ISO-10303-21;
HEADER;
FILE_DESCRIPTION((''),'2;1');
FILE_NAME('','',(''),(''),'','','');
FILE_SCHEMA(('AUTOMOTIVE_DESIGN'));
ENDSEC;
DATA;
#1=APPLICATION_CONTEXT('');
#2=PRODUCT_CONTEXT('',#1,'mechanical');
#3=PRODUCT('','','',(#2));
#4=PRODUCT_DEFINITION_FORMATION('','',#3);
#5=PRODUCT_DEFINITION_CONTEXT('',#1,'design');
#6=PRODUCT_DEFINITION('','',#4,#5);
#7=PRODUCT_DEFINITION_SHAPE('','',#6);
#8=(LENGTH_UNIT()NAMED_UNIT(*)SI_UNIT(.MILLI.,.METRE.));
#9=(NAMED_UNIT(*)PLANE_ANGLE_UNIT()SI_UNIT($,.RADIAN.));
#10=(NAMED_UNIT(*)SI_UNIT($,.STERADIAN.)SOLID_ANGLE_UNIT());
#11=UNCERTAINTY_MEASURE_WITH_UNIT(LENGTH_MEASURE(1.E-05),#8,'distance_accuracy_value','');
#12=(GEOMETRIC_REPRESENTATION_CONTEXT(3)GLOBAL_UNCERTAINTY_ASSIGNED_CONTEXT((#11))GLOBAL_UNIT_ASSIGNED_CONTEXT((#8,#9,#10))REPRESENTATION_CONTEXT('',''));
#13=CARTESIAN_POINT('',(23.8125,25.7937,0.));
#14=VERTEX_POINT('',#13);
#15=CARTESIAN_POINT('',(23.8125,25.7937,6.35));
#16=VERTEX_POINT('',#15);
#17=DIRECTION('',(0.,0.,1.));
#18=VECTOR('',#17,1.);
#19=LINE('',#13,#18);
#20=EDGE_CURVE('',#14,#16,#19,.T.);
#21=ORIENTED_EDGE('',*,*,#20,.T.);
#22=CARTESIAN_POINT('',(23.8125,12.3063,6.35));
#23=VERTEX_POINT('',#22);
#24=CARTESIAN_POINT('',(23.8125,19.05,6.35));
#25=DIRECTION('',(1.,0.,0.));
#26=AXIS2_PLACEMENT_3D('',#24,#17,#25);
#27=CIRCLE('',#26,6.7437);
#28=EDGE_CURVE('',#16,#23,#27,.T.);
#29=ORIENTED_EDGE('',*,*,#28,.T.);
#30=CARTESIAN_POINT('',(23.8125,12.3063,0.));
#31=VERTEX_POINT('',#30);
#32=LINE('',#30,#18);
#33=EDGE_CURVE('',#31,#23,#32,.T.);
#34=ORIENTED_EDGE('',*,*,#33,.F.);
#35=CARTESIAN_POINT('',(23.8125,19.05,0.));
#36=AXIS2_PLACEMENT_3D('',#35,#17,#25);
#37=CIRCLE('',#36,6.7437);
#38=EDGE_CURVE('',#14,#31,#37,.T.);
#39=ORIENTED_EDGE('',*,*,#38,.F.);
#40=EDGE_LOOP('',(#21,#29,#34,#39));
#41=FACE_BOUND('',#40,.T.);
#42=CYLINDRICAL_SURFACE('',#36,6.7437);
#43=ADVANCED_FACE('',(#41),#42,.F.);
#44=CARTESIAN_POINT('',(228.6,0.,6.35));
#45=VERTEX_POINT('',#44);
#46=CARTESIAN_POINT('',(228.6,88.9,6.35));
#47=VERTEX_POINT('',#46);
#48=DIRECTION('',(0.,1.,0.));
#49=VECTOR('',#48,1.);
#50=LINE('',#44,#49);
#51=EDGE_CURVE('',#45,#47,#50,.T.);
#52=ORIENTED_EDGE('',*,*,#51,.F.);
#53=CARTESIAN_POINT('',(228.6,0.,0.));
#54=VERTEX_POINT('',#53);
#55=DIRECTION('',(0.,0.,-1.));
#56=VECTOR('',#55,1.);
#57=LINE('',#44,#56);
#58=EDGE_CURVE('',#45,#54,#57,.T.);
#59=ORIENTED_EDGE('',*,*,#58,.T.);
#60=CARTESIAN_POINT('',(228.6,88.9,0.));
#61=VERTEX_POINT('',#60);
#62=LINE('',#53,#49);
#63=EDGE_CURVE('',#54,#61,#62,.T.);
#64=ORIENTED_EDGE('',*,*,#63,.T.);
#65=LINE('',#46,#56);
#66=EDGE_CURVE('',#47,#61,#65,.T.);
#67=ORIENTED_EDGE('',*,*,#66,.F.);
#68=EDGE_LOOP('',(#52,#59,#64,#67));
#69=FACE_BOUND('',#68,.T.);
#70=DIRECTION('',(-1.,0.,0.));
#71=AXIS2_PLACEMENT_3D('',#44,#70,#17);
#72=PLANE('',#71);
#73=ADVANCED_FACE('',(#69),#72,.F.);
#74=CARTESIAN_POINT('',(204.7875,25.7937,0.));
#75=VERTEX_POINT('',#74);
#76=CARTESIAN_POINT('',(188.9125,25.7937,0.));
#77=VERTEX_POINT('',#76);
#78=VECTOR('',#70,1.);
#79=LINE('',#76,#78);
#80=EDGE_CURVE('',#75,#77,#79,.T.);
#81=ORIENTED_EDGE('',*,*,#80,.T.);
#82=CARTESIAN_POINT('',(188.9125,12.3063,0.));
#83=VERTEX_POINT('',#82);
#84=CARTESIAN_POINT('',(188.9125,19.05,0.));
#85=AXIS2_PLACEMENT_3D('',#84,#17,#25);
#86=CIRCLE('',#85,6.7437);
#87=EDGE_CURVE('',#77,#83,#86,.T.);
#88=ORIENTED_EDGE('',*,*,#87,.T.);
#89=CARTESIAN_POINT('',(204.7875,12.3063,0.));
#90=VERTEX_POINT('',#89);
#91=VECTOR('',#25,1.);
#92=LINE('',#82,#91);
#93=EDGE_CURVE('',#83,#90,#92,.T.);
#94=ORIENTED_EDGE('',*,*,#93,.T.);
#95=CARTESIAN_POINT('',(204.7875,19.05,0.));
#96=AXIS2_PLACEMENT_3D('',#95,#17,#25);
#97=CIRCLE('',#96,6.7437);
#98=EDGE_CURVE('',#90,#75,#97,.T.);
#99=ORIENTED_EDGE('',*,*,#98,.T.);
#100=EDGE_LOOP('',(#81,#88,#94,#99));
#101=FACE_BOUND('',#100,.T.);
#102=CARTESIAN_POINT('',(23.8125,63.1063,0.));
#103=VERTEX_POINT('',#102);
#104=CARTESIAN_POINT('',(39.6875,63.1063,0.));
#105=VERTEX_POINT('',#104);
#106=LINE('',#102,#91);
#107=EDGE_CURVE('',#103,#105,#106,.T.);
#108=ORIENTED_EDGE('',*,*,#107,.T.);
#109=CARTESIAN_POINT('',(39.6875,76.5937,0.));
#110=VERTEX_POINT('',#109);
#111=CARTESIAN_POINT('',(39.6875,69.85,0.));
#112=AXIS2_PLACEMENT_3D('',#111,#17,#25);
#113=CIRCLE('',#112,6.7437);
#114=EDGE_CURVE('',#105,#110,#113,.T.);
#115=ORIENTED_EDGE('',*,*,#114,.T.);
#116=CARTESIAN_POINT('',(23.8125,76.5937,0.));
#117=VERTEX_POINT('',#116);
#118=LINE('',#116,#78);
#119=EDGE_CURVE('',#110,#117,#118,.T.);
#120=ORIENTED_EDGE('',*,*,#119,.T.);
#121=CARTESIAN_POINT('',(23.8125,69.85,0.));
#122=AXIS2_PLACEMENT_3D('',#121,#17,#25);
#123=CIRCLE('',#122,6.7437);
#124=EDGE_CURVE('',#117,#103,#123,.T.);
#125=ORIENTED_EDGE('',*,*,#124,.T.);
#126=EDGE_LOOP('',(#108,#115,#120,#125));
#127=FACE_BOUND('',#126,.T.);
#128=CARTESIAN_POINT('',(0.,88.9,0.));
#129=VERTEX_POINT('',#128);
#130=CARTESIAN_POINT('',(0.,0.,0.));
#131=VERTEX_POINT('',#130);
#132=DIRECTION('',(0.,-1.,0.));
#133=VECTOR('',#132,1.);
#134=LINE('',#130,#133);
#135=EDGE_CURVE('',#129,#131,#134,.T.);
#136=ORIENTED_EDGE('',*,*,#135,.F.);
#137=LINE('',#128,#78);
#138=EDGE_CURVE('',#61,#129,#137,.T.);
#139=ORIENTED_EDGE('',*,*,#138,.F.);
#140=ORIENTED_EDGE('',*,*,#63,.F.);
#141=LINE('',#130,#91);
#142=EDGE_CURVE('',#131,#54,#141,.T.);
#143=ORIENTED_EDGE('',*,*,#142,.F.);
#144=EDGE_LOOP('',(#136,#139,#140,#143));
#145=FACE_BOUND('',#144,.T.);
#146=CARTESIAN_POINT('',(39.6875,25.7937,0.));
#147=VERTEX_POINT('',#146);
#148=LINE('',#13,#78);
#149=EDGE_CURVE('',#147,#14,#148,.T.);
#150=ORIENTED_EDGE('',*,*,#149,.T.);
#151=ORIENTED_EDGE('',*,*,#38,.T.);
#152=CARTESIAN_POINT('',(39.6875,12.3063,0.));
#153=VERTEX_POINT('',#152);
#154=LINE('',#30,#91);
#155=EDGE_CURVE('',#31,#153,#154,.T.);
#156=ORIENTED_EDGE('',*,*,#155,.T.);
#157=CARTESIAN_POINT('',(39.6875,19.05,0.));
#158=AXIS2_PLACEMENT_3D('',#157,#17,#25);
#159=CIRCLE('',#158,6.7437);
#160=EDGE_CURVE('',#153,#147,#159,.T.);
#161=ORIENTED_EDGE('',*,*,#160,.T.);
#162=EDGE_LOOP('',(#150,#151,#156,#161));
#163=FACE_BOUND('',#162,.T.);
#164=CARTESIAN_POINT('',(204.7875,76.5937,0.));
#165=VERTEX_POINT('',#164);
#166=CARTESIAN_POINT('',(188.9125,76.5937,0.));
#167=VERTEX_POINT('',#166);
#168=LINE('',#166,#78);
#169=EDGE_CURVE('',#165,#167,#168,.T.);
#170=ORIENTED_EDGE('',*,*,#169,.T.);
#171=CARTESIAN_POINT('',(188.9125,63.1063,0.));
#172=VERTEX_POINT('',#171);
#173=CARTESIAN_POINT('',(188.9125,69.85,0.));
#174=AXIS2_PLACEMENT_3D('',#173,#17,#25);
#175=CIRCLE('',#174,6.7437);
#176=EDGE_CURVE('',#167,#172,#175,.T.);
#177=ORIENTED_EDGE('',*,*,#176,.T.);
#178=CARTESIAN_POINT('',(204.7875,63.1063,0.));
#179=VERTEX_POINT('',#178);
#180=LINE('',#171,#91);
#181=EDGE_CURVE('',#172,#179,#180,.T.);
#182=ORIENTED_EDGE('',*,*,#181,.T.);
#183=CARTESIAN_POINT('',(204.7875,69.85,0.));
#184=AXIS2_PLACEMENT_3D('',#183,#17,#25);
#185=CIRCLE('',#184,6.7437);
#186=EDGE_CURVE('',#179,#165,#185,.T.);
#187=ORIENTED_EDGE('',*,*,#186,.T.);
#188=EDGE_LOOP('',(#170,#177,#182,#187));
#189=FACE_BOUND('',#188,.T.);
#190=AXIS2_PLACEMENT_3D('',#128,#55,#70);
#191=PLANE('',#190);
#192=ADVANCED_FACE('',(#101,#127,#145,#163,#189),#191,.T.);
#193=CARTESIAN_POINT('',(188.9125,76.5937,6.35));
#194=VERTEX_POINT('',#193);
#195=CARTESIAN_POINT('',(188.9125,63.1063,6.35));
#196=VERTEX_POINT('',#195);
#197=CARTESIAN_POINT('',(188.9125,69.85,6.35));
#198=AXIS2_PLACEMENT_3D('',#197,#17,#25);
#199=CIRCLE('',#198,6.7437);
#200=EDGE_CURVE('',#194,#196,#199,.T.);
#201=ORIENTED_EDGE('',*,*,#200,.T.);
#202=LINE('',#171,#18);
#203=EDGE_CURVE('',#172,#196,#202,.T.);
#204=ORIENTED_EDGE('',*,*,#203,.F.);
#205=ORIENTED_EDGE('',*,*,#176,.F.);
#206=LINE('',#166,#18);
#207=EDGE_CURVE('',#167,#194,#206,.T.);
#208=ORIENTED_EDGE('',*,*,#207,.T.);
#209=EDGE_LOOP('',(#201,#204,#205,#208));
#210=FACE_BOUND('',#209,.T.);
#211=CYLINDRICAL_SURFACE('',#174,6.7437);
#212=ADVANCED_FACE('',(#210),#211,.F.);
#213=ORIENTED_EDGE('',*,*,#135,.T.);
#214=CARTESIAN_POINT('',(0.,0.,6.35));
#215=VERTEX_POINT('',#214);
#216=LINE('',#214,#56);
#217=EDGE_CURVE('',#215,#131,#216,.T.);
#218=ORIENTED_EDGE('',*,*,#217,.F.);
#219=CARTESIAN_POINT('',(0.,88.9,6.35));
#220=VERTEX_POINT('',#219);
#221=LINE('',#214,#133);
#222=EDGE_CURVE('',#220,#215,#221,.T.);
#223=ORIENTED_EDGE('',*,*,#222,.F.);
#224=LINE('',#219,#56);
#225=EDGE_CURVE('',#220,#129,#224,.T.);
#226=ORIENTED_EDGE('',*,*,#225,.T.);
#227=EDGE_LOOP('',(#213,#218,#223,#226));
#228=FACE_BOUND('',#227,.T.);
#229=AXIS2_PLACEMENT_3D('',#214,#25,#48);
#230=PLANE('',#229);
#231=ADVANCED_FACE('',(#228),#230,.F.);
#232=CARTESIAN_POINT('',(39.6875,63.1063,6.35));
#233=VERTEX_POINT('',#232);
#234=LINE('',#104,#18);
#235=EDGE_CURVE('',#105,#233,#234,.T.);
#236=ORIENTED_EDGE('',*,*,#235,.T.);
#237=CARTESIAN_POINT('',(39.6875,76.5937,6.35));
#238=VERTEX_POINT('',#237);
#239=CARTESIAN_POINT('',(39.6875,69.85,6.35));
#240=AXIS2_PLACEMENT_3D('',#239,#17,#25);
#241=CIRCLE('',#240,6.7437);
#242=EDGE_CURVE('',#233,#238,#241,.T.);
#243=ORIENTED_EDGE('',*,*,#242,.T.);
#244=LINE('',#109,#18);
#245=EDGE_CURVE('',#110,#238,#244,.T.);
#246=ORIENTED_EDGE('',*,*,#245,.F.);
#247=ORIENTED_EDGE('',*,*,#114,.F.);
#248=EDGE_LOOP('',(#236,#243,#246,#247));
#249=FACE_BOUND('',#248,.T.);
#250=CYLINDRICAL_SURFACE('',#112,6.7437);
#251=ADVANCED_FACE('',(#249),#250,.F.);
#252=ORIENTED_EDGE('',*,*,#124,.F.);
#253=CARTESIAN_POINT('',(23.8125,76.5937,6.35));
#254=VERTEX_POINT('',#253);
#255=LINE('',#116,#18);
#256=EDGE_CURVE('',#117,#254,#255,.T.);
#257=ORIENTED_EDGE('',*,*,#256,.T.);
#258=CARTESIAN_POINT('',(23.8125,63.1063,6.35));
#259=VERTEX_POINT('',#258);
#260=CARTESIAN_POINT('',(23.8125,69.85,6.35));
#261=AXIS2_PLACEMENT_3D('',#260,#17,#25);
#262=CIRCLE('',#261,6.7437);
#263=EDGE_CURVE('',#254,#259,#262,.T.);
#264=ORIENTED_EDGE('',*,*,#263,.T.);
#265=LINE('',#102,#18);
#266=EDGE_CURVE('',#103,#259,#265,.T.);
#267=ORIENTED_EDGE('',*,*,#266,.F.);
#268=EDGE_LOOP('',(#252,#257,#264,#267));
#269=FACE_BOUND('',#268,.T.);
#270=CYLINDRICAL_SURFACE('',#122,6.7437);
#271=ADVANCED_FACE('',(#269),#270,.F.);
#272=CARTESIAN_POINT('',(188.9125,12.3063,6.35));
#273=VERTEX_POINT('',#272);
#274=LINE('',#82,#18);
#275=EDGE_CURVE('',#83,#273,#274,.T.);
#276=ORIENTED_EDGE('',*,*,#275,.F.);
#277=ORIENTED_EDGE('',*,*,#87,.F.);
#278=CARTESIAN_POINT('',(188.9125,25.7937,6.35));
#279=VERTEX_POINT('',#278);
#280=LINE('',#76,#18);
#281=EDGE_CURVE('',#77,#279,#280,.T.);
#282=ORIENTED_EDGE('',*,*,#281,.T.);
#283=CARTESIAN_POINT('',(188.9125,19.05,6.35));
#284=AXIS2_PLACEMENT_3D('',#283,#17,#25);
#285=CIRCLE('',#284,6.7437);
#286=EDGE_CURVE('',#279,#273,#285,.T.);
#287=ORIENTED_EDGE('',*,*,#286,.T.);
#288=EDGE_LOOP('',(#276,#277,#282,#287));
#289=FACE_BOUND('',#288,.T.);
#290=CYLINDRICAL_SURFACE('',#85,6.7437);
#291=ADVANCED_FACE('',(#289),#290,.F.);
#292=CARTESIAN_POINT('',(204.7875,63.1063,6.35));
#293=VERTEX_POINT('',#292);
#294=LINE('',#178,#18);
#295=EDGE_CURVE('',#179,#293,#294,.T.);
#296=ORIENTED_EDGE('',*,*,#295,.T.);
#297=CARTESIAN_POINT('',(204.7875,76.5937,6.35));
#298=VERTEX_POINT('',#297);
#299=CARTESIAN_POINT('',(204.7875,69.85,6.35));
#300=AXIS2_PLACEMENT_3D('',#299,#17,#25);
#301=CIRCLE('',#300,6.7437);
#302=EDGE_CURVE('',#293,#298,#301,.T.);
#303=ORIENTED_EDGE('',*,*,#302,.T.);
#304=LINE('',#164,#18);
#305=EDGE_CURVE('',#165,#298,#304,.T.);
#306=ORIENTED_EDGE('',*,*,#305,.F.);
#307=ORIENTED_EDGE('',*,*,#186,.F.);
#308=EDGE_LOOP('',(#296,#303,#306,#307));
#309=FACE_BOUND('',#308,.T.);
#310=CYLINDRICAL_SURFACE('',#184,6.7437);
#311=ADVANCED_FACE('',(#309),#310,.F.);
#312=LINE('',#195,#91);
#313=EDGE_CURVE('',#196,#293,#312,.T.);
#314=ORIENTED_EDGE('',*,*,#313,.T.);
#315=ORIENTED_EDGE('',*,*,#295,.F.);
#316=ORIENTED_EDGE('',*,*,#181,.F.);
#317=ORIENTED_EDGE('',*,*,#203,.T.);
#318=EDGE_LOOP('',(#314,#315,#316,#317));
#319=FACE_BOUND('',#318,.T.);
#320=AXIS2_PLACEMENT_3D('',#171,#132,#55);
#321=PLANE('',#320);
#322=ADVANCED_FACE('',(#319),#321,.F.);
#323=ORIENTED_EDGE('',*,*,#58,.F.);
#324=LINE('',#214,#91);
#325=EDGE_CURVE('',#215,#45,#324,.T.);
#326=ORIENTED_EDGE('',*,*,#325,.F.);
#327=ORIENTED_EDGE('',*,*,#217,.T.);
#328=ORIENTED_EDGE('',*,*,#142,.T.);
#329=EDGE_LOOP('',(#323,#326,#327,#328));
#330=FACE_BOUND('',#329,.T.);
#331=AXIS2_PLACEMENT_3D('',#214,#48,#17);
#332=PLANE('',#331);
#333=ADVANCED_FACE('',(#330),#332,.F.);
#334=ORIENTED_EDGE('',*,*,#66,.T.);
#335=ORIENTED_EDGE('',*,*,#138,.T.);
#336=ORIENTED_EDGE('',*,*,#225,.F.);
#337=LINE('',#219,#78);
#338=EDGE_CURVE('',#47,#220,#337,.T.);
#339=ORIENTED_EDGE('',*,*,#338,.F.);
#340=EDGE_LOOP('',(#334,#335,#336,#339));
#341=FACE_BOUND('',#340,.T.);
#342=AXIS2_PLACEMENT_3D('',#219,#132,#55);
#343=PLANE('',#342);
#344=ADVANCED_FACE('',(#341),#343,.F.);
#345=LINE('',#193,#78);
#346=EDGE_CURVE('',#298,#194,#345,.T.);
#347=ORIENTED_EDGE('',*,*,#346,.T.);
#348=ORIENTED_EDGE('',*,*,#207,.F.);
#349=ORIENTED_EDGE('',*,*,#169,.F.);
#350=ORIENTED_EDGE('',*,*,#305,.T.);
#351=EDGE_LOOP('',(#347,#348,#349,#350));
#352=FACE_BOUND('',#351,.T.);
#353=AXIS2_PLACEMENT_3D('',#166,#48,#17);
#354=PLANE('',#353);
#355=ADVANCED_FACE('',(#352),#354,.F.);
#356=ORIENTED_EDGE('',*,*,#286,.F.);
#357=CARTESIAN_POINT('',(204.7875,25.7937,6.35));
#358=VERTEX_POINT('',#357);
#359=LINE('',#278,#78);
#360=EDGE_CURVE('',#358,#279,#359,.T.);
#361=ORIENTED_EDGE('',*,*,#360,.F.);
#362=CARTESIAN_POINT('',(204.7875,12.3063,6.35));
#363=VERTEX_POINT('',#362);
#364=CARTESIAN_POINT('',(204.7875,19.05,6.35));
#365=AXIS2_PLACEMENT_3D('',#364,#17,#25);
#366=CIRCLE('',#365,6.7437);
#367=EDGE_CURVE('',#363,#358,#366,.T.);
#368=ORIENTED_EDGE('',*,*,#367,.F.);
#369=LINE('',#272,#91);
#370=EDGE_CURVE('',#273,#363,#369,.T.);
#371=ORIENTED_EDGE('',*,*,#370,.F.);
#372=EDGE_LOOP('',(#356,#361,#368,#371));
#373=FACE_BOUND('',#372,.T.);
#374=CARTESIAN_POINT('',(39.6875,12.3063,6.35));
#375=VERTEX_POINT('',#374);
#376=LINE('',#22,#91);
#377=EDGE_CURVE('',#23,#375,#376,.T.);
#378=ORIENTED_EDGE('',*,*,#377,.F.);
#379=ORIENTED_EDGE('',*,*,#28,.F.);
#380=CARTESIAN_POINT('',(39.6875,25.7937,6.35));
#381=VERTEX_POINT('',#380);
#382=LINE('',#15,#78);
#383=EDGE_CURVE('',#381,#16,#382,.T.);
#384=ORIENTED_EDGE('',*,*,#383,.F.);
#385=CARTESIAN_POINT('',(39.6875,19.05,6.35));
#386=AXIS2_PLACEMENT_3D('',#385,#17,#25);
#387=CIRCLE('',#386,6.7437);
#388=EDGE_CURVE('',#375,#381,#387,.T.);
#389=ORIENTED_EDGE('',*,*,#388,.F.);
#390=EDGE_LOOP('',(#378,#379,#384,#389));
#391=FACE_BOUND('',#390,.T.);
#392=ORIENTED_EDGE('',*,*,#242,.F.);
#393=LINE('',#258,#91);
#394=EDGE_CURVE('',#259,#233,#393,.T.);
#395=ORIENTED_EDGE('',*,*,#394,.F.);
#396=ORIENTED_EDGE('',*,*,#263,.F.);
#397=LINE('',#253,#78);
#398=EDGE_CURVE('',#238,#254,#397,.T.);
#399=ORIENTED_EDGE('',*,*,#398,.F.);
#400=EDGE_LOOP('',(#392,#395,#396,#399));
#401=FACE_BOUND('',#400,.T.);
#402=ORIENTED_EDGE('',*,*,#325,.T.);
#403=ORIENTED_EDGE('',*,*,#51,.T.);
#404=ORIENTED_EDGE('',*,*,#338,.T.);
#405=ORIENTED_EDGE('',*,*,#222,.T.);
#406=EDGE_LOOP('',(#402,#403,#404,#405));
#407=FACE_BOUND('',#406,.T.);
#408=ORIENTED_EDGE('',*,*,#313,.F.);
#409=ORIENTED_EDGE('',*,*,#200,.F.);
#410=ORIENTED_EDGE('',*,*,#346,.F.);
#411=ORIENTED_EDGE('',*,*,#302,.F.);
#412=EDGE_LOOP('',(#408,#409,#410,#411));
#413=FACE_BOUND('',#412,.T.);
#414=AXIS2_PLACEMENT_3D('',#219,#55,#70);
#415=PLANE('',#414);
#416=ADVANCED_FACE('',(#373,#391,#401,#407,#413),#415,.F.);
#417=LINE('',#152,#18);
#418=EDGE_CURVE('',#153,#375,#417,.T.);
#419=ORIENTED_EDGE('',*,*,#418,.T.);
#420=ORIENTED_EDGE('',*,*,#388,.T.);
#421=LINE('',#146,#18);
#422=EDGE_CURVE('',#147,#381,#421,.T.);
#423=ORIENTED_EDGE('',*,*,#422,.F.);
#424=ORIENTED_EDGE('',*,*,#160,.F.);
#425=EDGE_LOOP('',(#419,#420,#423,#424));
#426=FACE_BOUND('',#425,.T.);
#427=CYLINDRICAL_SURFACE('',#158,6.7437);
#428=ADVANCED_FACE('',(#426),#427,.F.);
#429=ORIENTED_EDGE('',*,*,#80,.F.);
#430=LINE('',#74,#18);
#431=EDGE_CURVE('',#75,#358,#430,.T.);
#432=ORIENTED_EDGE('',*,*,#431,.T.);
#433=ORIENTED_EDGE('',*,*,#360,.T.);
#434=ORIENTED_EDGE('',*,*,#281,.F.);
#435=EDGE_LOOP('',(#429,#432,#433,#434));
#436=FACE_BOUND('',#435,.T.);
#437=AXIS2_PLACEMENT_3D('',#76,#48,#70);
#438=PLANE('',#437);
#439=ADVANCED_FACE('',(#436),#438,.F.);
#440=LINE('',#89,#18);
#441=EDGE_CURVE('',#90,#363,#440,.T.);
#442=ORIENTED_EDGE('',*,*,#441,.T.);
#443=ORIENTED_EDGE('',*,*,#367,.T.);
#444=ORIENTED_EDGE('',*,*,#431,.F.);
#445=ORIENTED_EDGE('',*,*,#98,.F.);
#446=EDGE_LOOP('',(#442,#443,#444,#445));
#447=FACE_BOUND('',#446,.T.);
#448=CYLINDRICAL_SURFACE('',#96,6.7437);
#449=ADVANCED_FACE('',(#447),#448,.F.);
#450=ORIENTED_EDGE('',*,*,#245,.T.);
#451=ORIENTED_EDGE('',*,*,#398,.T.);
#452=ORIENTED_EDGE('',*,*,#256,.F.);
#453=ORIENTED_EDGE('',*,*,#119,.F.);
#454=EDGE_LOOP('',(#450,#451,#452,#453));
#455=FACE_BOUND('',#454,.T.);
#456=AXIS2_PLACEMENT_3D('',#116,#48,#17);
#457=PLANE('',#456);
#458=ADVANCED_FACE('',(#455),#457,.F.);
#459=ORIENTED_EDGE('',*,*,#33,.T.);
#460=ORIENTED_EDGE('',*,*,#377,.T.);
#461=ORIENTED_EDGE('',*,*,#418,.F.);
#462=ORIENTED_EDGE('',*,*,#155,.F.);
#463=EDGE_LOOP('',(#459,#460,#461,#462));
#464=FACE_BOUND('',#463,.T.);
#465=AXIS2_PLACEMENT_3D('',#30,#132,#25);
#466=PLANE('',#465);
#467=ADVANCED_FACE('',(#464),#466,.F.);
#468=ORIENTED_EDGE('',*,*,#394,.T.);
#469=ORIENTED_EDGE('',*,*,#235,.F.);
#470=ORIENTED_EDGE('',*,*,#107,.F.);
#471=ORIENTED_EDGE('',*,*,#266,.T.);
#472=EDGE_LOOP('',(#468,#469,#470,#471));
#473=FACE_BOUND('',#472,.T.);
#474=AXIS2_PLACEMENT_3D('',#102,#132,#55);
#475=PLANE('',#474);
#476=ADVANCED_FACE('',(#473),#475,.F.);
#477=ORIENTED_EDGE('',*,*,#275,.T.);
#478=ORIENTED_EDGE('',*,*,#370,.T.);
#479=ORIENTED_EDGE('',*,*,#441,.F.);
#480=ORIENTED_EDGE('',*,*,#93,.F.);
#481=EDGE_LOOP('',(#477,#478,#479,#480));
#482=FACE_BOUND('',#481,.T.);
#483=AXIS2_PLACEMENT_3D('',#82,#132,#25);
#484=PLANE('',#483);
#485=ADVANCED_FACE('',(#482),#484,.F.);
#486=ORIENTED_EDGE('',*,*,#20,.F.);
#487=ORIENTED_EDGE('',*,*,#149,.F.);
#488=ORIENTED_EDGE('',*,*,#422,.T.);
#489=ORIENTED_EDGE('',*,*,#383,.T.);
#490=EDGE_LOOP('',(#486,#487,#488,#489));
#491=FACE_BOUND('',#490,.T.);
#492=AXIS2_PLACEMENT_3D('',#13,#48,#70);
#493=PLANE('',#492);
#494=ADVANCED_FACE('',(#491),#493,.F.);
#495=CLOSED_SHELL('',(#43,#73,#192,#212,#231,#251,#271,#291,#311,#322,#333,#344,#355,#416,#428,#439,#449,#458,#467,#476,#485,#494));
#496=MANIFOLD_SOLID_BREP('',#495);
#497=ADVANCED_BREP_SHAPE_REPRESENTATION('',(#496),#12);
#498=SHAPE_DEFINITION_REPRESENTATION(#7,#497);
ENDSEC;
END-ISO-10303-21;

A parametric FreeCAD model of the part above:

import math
import FreeCAD as App
import Part
import Sketcher
Q = App.Units.Quantity

doc = App.newDocument("Part")
body = doc.addObject("PartDesign::Body", "Body")

# Sketch on XY plane
sketch1 = body.newObject("Sketcher::SketchObject", "Sketch")
sketch1.AttachmentSupport = (doc.getObject("XY_Plane"), [""])
sketch1.MapMode = "FlatFace"
sketch1.addGeometry([
    Part.LineSegment(App.Vector(0, 89, 0), App.Vector(0, 0, 0)),
    Part.LineSegment(App.Vector(0, 0, 0), App.Vector(229, 0, 0)),
    Part.LineSegment(App.Vector(229, 0, 0), App.Vector(229, 89, 0)),
    Part.LineSegment(App.Vector(229, 89, 0), App.Vector(0, 89, 0)),
], False)
sketch1.addConstraint([
    Sketcher.Constraint("Coincident", 0, 2, 1, 1),
    Sketcher.Constraint("Coincident", 1, 2, 2, 1),
    Sketcher.Constraint("Coincident", 2, 2, 3, 1),
    Sketcher.Constraint("Coincident", 3, 2, 0, 1),
    Sketcher.Constraint("Vertical", 0),
    Sketcher.Constraint("Horizontal", 1),
    Sketcher.Constraint("Vertical", 2),
    Sketcher.Constraint("Horizontal", 3),
    Sketcher.Constraint("Coincident", 0, 2, -1, 1),
    Sketcher.Constraint("DistanceX", 1, 1, 1, 2, Q("9 in")),
    Sketcher.Constraint("DistanceY", 0, 2, 0, 1, Q("3.5 in")),
])
pad1 = body.newObject("PartDesign::Pad", "Pad")
pad1.Profile = sketch1
pad1.Length = Q("0.25 in")

# Sketch on XY plane
sketch2 = body.newObject("Sketcher::SketchObject", "Sketch001")
sketch2.AttachmentSupport = (doc.getObject("XY_Plane"), [""])
sketch2.MapMode = "FlatFace"
sketch2.AttachmentOffset = App.Placement(App.Vector(0, 0, 0.25 * 25.4), App.Rotation())
sketch2.addGeometry([
    Part.LineSegment(App.Vector(40, 77, 0), App.Vector(24, 77, 0)),  # 0
    Part.ArcOfCircle(Part.Circle(App.Vector(24, 70, 0), App.Vector(0, 0, 1), 7), math.radians(90), math.radians(270)),  # 1
    Part.LineSegment(App.Vector(24, 63, 0), App.Vector(40, 63, 0)),  # 2
    Part.ArcOfCircle(Part.Circle(App.Vector(40, 70, 0), App.Vector(0, 0, 1), 7), math.radians(-90), math.radians(90)),  # 3
    Part.LineSegment(App.Vector(40, 26, 0), App.Vector(24, 26, 0)),  # 4
    Part.ArcOfCircle(Part.Circle(App.Vector(24, 19, 0), App.Vector(0, 0, 1), 7), math.radians(90), math.radians(270)),  # 5
    Part.LineSegment(App.Vector(24, 12, 0), App.Vector(40, 12, 0)),  # 6
    Part.ArcOfCircle(Part.Circle(App.Vector(40, 19, 0), App.Vector(0, 0, 1), 7), math.radians(-90), math.radians(90)),  # 7
], False)
sketch2.addConstraint([
    Sketcher.Constraint("Tangent", 0, 2, 1, 1),
    Sketcher.Constraint("Tangent", 1, 2, 2, 1),
    Sketcher.Constraint("Tangent", 2, 2, 3, 1),
    Sketcher.Constraint("Tangent", 3, 2, 0, 1),
    Sketcher.Constraint("Tangent", 4, 2, 5, 1),
    Sketcher.Constraint("Tangent", 5, 2, 6, 1),
    Sketcher.Constraint("Tangent", 6, 2, 7, 1),
    Sketcher.Constraint("Tangent", 7, 2, 4, 1),
    Sketcher.Constraint("Horizontal", 0),
    Sketcher.Constraint("Horizontal", 2),
    Sketcher.Constraint("Horizontal", 4),
    Sketcher.Constraint("Horizontal", 6),
    Sketcher.Constraint("Equal", 3, 5),
    Sketcher.Constraint("Vertical", 1, 3, 5, 3),
    Sketcher.Constraint("Vertical", 3, 3, 7, 3),
    Sketcher.Constraint("DistanceY", 5, 3, 1, 3, Q("2 in")),
    Sketcher.Constraint("Radius", 1, Q("0.2655 in")),
    Sketcher.Constraint("DistanceX", 0, 2, 0, 1, Q("0.625 in")),
    Sketcher.Constraint("DistanceY", -1, 1, 1, 3, Q("2.75 in")),
    Sketcher.Constraint("DistanceX", -1, 1, 1, 3, Q("0.9375 in")),
])
pocket1 = body.newObject("PartDesign::Pocket", "Pocket")
pocket1.Profile = sketch2
pocket1.Type = "ThroughAll"
doc.recompute()

linearpattern = body.newObject("PartDesign::LinearPattern", "LinearPattern")
linearpattern.Originals = [pocket1]
linearpattern.Direction = (doc.getObject("X_Axis"), [""])
linearpattern.Mode = "offset"
linearpattern.Offset = Q("6.5 in")
linearpattern.Occurrences = 2
body.Tip = linearpattern

doc.recompute()
